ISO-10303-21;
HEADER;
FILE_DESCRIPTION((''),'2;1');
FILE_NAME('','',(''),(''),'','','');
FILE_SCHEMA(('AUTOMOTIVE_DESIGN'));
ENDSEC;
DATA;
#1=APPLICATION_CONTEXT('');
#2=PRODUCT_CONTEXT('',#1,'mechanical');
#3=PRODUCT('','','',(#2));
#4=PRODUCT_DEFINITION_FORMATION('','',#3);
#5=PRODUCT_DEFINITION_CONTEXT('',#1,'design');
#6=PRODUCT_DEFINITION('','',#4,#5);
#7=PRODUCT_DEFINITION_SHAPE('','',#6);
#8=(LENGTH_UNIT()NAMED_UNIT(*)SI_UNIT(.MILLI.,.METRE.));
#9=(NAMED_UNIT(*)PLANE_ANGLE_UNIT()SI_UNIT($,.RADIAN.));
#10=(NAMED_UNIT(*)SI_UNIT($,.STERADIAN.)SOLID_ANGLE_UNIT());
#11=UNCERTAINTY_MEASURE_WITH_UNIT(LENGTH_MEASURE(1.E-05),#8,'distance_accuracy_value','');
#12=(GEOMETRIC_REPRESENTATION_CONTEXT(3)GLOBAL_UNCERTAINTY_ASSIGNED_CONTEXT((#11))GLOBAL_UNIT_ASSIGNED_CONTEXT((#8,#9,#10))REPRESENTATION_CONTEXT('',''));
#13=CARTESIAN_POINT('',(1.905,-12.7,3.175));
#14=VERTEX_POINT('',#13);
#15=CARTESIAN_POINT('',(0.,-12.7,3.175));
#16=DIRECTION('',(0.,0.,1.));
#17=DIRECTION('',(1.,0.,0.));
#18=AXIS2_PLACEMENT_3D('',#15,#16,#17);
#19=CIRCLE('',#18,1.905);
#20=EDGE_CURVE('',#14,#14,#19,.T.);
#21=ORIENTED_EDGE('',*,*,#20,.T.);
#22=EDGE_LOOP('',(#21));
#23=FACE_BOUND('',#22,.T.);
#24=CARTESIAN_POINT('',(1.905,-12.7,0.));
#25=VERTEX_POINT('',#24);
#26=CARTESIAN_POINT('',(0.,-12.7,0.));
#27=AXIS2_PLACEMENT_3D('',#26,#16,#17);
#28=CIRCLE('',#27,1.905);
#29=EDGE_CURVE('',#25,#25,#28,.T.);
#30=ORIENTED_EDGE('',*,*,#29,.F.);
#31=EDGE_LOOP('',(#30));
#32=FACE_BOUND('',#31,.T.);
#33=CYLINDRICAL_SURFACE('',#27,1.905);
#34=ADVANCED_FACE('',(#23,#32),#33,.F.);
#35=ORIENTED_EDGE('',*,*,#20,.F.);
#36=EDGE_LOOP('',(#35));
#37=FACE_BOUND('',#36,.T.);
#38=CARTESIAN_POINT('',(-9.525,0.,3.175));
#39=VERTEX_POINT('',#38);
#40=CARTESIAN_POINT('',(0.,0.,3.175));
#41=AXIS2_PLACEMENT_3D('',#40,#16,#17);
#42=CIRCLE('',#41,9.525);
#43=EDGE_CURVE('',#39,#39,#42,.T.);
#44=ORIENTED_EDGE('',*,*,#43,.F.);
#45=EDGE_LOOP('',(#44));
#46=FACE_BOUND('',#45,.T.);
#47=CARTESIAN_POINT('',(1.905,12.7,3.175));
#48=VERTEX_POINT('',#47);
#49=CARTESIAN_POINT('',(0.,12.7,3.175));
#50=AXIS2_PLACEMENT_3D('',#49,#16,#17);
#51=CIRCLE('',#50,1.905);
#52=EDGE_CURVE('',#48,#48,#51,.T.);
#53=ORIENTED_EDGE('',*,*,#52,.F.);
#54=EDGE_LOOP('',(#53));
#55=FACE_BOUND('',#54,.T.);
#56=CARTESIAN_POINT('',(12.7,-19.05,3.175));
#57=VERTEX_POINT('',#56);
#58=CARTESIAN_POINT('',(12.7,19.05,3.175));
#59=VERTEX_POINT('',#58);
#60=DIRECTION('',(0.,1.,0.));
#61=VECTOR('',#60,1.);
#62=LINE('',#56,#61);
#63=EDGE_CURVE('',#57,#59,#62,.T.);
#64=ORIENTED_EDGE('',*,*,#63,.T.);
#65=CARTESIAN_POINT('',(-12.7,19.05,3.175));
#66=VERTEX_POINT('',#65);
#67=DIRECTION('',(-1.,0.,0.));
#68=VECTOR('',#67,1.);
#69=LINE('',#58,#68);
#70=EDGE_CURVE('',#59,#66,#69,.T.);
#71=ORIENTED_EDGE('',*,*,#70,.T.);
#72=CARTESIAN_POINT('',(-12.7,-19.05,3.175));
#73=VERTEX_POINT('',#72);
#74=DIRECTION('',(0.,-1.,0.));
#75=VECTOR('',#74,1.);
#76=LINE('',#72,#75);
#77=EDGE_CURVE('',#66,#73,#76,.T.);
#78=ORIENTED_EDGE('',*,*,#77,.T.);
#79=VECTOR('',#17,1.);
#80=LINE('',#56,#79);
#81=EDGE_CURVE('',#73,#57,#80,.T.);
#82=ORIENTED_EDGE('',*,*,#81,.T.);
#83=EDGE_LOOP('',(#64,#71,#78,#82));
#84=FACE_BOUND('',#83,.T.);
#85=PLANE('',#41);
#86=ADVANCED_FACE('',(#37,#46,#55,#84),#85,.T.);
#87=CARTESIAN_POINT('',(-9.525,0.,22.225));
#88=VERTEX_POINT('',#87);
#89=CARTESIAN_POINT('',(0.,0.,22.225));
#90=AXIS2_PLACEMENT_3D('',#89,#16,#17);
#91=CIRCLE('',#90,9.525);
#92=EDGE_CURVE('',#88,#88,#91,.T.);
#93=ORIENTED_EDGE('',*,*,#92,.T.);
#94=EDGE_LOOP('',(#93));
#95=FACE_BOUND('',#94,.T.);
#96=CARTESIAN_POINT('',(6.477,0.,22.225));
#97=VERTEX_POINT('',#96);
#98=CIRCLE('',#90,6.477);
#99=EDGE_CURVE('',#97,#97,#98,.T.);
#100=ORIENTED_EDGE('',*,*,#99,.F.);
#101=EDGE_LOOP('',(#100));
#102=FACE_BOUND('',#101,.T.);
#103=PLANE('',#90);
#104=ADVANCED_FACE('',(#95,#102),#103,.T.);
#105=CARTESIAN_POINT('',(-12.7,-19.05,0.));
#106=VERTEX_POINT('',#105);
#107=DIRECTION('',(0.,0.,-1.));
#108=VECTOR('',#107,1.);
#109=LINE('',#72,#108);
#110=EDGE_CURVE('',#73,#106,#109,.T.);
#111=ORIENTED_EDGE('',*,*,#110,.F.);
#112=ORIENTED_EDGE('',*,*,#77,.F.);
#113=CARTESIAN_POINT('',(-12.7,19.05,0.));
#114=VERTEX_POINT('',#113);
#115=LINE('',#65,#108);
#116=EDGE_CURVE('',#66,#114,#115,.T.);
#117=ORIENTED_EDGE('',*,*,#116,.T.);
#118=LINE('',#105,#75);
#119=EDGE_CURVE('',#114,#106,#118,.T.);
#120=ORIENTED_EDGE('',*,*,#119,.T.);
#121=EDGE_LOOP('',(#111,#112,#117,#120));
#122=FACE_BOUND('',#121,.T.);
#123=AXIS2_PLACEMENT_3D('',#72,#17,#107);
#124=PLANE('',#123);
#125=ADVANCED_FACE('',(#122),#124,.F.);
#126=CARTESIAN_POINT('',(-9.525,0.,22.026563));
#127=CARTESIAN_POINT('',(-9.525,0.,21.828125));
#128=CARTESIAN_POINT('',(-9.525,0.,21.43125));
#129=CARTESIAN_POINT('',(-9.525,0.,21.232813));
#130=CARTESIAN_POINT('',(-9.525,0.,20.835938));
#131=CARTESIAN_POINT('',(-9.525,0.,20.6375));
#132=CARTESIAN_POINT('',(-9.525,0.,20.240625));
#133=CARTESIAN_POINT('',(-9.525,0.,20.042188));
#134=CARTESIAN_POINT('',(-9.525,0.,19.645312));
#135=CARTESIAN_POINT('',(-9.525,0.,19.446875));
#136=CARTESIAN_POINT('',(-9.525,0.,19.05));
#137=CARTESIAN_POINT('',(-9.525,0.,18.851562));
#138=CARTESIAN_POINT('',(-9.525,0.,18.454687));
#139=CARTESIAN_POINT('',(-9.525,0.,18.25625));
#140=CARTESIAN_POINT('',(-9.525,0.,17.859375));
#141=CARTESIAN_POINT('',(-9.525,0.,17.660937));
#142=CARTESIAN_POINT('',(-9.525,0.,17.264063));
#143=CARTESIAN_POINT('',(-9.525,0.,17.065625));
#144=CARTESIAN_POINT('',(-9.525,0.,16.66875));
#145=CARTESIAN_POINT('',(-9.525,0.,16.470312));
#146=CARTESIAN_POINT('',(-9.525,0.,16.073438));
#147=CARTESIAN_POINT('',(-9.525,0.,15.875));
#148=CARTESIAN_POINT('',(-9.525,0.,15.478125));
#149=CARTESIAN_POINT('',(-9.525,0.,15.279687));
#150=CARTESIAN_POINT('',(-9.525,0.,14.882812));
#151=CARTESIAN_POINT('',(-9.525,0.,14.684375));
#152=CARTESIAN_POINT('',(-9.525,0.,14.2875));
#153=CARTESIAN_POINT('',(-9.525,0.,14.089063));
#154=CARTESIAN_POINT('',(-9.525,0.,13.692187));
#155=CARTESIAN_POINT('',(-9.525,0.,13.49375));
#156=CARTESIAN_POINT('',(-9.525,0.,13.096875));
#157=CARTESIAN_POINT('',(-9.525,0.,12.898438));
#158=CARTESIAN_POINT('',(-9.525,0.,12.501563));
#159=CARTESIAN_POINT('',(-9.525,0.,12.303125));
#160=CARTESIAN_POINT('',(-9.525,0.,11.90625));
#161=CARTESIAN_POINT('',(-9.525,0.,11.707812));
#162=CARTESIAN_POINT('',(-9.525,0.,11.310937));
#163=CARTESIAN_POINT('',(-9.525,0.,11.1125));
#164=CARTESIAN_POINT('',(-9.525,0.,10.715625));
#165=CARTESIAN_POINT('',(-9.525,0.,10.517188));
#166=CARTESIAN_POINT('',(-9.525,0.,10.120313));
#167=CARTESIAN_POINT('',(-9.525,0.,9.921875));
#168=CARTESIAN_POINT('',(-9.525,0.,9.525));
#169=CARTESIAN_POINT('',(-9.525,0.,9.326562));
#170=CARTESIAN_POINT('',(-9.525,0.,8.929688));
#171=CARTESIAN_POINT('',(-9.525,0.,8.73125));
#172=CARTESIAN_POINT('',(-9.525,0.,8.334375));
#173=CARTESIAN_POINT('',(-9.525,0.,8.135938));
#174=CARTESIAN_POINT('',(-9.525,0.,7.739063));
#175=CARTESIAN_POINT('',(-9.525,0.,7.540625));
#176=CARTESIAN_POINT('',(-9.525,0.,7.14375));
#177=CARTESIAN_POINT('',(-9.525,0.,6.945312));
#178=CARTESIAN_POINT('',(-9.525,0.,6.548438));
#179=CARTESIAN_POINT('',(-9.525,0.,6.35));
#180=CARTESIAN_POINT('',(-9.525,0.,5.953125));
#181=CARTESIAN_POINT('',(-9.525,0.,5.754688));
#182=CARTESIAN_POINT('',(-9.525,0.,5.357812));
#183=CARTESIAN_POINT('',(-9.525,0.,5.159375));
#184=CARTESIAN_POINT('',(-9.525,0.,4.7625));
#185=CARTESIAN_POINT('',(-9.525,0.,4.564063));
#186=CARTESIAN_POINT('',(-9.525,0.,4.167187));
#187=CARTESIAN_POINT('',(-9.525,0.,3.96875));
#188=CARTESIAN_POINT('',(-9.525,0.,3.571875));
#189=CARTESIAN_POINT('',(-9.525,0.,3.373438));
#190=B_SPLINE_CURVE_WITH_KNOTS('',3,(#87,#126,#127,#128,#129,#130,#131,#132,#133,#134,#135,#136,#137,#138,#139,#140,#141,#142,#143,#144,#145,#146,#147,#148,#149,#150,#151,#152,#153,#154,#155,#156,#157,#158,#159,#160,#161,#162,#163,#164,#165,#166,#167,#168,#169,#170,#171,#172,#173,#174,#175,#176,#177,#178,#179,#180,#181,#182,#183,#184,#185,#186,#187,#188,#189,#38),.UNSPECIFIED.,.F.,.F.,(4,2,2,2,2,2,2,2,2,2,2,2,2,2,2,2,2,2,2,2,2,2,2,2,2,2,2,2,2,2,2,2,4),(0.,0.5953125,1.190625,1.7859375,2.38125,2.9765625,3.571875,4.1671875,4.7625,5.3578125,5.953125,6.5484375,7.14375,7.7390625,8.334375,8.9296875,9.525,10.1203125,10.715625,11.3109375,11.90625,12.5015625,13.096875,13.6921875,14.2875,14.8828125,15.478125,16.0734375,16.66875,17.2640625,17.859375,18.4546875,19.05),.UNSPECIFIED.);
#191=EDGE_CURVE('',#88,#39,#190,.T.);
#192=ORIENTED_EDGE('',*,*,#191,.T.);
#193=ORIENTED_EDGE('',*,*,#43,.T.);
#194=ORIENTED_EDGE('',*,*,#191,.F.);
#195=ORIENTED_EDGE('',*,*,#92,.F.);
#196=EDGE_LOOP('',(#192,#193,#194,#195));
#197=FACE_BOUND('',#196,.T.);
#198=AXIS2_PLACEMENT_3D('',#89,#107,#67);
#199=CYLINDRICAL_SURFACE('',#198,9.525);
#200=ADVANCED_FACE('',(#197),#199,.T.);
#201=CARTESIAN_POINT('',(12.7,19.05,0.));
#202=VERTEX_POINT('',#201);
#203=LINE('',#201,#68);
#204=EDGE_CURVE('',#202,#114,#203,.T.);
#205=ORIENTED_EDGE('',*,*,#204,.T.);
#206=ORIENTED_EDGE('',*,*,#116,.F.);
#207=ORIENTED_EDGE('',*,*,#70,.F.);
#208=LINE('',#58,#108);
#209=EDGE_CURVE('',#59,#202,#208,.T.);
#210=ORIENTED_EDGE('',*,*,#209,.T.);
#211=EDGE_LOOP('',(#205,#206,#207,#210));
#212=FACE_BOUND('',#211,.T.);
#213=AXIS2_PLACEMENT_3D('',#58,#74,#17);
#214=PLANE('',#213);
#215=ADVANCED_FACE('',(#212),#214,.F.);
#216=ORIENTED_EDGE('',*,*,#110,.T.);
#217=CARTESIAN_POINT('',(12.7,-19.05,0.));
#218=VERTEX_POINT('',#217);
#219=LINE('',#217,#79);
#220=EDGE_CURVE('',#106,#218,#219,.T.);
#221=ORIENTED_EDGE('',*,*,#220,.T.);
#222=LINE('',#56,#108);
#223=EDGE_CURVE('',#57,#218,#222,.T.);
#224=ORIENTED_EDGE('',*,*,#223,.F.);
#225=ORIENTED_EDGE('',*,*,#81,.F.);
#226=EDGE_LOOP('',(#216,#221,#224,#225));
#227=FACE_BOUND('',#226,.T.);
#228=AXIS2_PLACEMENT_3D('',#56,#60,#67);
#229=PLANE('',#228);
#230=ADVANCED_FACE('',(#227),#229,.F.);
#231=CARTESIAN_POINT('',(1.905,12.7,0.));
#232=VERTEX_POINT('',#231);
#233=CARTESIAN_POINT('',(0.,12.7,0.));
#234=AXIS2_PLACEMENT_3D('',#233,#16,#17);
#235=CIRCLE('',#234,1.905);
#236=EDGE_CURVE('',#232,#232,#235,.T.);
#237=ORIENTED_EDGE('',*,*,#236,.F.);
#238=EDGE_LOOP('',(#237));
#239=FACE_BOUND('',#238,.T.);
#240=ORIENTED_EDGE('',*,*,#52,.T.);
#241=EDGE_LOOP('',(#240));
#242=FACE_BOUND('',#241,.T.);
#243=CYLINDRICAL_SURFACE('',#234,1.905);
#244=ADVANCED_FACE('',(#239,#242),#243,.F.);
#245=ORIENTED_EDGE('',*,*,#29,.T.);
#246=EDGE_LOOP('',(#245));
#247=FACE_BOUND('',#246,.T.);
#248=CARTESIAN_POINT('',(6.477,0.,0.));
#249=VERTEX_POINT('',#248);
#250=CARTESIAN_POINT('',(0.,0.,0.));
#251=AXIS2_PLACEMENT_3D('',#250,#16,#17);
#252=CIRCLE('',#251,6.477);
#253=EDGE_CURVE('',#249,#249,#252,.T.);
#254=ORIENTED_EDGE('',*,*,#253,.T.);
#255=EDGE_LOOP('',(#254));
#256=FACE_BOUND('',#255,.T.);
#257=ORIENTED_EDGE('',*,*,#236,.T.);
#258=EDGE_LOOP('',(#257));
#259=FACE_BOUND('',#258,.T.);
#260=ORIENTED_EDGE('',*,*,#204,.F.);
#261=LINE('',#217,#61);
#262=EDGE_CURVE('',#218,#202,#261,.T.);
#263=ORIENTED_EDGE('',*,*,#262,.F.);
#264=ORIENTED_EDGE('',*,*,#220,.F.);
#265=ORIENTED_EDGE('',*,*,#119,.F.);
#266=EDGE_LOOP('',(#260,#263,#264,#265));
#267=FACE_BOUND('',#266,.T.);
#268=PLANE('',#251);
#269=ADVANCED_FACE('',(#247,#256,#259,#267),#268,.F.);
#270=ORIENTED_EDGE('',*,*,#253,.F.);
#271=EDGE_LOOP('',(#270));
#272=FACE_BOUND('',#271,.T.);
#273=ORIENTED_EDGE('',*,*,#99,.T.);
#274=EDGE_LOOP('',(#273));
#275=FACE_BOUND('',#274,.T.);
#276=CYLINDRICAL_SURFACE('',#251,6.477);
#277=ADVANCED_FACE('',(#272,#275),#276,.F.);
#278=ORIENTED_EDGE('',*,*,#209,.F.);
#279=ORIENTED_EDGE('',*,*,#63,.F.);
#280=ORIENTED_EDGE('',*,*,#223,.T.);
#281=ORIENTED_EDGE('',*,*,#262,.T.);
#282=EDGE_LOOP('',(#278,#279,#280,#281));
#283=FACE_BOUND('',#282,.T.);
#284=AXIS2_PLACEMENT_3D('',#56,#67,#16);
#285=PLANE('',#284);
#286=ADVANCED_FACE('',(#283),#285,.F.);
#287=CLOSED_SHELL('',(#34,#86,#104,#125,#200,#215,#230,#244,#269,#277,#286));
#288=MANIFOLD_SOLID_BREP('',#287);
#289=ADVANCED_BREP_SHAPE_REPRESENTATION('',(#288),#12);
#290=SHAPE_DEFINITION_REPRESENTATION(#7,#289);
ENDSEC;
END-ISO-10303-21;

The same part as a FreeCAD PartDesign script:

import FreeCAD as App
import Part
import Sketcher
from FreeCAD import Vector
Q = App.Units.Quantity

doc = App.newDocument("Part")
body = doc.addObject("PartDesign::Body", "Body")

# Sketch on XY plane
sketch1 = doc.addObject("Sketcher::SketchObject", "Sketch")
body.addObject(sketch1)
sketch1.AttachmentSupport = (doc.XY_Plane, [""])
sketch1.MapMode = "FlatFace"
sketch1.addGeometry([
    Part.LineSegment(Vector(-13, 19, 0), Vector(-13, -19, 0)),
    Part.LineSegment(Vector(-13, -19, 0), Vector(13, -19, 0)),
    Part.LineSegment(Vector(13, -19, 0), Vector(13, 19, 0)),
    Part.LineSegment(Vector(13, 19, 0), Vector(-13, 19, 0)),
], False)
sketch1.addConstraint([
    Sketcher.Constraint("Coincident", 0, 2, 1, 1),
    Sketcher.Constraint("Coincident", 1, 2, 2, 1),
    Sketcher.Constraint("Coincident", 2, 2, 3, 1),
    Sketcher.Constraint("Coincident", 3, 2, 0, 1),
    Sketcher.Constraint("Vertical", 0),
    Sketcher.Constraint("Horizontal", 1),
    Sketcher.Constraint("Vertical", 2),
    Sketcher.Constraint("Horizontal", 3),
    Sketcher.Constraint("Symmetric", 0, 2, 2, 2, -1, 1),
    Sketcher.Constraint("DistanceX", 1, 1, 1, 2, Q("1 in")),
    Sketcher.Constraint("DistanceY", 0, 2, 0, 1, Q("1.5 in")),
])
pad1 = doc.addObject("PartDesign::Pad", "Pad")
body.addObject(pad1)
pad1.Profile = sketch1
pad1.Length = Q("0.125 in")

# Sketch on XY plane
sketch2 = doc.addObject("Sketcher::SketchObject", "Sketch001")
body.addObject(sketch2)
sketch2.AttachmentSupport = (doc.XY_Plane, [""])
sketch2.MapMode = "FlatFace"
sketch2.AttachmentOffset = App.Placement(Vector(0, 0, 0.125 * 25.4), App.Rotation())
sketch2.addGeometry(Part.Circle(Vector(0, 0, 0), Vector(0, 0, 1), 10), False)
sketch2.addConstraint([
    Sketcher.Constraint("Coincident", 0, 3, -1, 1),
    Sketcher.Constraint("Diameter", 0, Q("0.75 in")),
])
pad2 = doc.addObject("PartDesign::Pad", "Pad001")
body.addObject(pad2)
pad2.Profile = sketch2
pad2.Length = Q("0.75 in")

# Sketch on XY plane
sketch3 = doc.addObject("Sketcher::SketchObject", "Sketch002")
body.addObject(sketch3)
sketch3.AttachmentSupport = (doc.XY_Plane, [""])
sketch3.MapMode = "FlatFace"
sketch3.AttachmentOffset = App.Placement(Vector(0, 0, 0.875 * 25.4), App.Rotation())
sketch3.addGeometry(Part.Circle(Vector(0, 0, 0), Vector(0, 0, 1), 6), False)
sketch3.addConstraint([
    Sketcher.Constraint("Coincident", 0, 3, -1, 1),
    Sketcher.Constraint("Diameter", 0, Q("0.51 in")),
])
pocket1 = doc.addObject("PartDesign::Pocket", "Pocket")
body.addObject(pocket1)
pocket1.Profile = sketch3
pocket1.Type = "ThroughAll"

# Sketch on XY plane
sketch4 = doc.addObject("Sketcher::SketchObject", "Sketch003")
body.addObject(sketch4)
sketch4.AttachmentSupport = (doc.XY_Plane, [""])
sketch4.MapMode = "FlatFace"
sketch4.AttachmentOffset = App.Placement(Vector(0, 0, 0.125 * 25.4), App.Rotation())
sketch4.addGeometry([
    Part.Circle(Vector(0, 12.7, 0), Vector(0, 0, 1), 1.9),
    Part.Circle(Vector(0, -12.7, 0), Vector(0, 0, 1), 1.9),
], False)
sketch4.addConstraint([
    Sketcher.Constraint("Equal", 0, 1),
    Sketcher.Constraint("Symmetric", 0, 3, 1, 3, -1, 1),
    Sketcher.Constraint("PointOnObject", 0, 3, -2),
    Sketcher.Constraint("Diameter", 0, Q("0.15 in")),
    Sketcher.Constraint("DistanceY", 1, 3, 0, 3, Q("1 in")),
])
pocket2 = doc.addObject("PartDesign::Pocket", "Pocket001")
body.addObject(pocket2)
pocket2.Profile = sketch4
pocket2.Type = "ThroughAll"

doc.recompute()
